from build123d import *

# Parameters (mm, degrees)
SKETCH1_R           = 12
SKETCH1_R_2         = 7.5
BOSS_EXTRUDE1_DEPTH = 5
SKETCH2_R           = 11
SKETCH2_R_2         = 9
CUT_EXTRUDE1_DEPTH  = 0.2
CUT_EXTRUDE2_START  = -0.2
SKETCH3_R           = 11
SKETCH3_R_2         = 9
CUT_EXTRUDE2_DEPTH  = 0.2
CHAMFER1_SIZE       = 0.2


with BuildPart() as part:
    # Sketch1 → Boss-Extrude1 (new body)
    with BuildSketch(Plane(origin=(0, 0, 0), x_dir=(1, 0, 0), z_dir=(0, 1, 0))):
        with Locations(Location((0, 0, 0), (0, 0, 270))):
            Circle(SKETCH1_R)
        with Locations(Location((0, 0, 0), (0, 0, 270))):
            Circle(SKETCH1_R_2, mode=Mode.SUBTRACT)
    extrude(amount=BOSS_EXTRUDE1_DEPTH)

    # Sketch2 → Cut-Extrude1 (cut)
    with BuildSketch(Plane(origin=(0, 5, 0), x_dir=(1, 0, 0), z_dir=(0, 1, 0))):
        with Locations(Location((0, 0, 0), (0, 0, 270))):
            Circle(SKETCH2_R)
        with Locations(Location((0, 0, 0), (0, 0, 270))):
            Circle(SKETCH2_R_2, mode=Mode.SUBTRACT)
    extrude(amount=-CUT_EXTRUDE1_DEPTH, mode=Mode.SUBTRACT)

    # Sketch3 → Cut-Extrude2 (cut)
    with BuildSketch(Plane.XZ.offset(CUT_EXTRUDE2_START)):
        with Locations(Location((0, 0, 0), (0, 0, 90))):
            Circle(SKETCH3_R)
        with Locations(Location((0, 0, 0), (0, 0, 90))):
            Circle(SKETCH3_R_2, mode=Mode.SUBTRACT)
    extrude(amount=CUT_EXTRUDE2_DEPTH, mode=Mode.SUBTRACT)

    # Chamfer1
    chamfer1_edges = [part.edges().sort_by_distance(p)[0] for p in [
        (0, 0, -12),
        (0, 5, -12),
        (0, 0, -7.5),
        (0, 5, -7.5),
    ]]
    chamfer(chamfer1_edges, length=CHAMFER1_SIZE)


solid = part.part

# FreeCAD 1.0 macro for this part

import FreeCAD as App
import Part
import Sketcher
Q = App.Units.Quantity


def edges_at(feature, points):
    """Names of the edges that pass closest to the given points."""
    edges = feature.Shape.Edges
    near = lambda p: min(range(len(edges)), key=lambda i: edges[i].distToShape(Part.Vertex(*p))[0])
    return sorted({f"Edge{near(p) + 1}" for p in points})

doc = App.newDocument("Part")
body = doc.addObject("PartDesign::Body", "Body")

sketch1 = body.newObject("Sketcher::SketchObject", "Sketch")
sketch1.AttachmentSupport = (doc.getObject("XZ_Plane"), [""])
sketch1.MapMode = "FlatFace"
sketch1.addGeometry([
    Part.Circle(App.Vector(0, 0, 0), App.Vector(0, 0, 1), 12),
    Part.Circle(App.Vector(0, 0, 0), App.Vector(0, 0, 1), 7.5),
], False)
sketch1.addConstraint([
    Sketcher.Constraint("Coincident", 0, 3, -1, 1),
    Sketcher.Constraint("Coincident", 1, 3, -1, 1),
    Sketcher.Constraint("Diameter", 0, Q("24 mm")),
    Sketcher.Constraint("Diameter", 1, Q("15 mm")),
])
pad1 = body.newObject("PartDesign::Pad", "Pad")
pad1.Profile = sketch1
pad1.Length = 5
pad1.Reversed = True

sketch2 = body.newObject("Sketcher::SketchObject", "Sketch001")
sketch2.AttachmentSupport = (doc.getObject("XZ_Plane"), [""])
sketch2.MapMode = "FlatFace"
sketch2.AttachmentOffset = App.Placement(App.Vector(0, 0, -5), App.Rotation())
sketch2.addGeometry([
    Part.Circle(App.Vector(0, 0, 0), App.Vector(0, 0, 1), 11),
    Part.Circle(App.Vector(0, 0, 0), App.Vector(0, 0, 1), 9),
], False)
sketch2.addConstraint([
    Sketcher.Constraint("Coincident", 0, 3, -1, 1),
    Sketcher.Constraint("Coincident", 1, 3, -1, 1),
    Sketcher.Constraint("Diameter", 0, Q("22 mm")),
    Sketcher.Constraint("Diameter", 1, Q("18 mm")),
])
pocket1 = body.newObject("PartDesign::Pocket", "Pocket")
pocket1.Profile = sketch2
pocket1.Length = 0.2
pocket1.Reversed = True

sketch3 = body.newObject("Sketcher::SketchObject", "Sketch002")
sketch3.AttachmentSupport = (doc.getObject("XZ_Plane"), [""])
sketch3.MapMode = "FlatFace"
sketch3.AttachmentOffset = App.Placement(App.Vector(0, 0, -0.2), App.Rotation())
sketch3.addGeometry([
    Part.Circle(App.Vector(0, 0, 0), App.Vector(0, 0, 1), 11),
    Part.Circle(App.Vector(0, 0, 0), App.Vector(0, 0, 1), 9),
], False)
sketch3.addConstraint([
    Sketcher.Constraint("Coincident", 0, 3, -1, 1),
    Sketcher.Constraint("Coincident", 1, 3, -1, 1),
    Sketcher.Constraint("Diameter", 0, Q("22 mm")),
    Sketcher.Constraint("Diameter", 1, Q("18 mm")),
])
pocket2 = body.newObject("PartDesign::Pocket", "Pocket001")
pocket2.Profile = sketch3
pocket2.Length = 0.2
pocket2.Reversed = True
doc.recompute()

chamfer = body.newObject("PartDesign::Chamfer", "Chamfer")
chamfer.Base = (pocket2, edges_at(pocket2, [
    (0, 0, -12),
    (0, 5, -12),
    (0, 0, -7.5),
    (0, 5, -7.5),
]))
chamfer.Size = 0.2

doc.recompute()
